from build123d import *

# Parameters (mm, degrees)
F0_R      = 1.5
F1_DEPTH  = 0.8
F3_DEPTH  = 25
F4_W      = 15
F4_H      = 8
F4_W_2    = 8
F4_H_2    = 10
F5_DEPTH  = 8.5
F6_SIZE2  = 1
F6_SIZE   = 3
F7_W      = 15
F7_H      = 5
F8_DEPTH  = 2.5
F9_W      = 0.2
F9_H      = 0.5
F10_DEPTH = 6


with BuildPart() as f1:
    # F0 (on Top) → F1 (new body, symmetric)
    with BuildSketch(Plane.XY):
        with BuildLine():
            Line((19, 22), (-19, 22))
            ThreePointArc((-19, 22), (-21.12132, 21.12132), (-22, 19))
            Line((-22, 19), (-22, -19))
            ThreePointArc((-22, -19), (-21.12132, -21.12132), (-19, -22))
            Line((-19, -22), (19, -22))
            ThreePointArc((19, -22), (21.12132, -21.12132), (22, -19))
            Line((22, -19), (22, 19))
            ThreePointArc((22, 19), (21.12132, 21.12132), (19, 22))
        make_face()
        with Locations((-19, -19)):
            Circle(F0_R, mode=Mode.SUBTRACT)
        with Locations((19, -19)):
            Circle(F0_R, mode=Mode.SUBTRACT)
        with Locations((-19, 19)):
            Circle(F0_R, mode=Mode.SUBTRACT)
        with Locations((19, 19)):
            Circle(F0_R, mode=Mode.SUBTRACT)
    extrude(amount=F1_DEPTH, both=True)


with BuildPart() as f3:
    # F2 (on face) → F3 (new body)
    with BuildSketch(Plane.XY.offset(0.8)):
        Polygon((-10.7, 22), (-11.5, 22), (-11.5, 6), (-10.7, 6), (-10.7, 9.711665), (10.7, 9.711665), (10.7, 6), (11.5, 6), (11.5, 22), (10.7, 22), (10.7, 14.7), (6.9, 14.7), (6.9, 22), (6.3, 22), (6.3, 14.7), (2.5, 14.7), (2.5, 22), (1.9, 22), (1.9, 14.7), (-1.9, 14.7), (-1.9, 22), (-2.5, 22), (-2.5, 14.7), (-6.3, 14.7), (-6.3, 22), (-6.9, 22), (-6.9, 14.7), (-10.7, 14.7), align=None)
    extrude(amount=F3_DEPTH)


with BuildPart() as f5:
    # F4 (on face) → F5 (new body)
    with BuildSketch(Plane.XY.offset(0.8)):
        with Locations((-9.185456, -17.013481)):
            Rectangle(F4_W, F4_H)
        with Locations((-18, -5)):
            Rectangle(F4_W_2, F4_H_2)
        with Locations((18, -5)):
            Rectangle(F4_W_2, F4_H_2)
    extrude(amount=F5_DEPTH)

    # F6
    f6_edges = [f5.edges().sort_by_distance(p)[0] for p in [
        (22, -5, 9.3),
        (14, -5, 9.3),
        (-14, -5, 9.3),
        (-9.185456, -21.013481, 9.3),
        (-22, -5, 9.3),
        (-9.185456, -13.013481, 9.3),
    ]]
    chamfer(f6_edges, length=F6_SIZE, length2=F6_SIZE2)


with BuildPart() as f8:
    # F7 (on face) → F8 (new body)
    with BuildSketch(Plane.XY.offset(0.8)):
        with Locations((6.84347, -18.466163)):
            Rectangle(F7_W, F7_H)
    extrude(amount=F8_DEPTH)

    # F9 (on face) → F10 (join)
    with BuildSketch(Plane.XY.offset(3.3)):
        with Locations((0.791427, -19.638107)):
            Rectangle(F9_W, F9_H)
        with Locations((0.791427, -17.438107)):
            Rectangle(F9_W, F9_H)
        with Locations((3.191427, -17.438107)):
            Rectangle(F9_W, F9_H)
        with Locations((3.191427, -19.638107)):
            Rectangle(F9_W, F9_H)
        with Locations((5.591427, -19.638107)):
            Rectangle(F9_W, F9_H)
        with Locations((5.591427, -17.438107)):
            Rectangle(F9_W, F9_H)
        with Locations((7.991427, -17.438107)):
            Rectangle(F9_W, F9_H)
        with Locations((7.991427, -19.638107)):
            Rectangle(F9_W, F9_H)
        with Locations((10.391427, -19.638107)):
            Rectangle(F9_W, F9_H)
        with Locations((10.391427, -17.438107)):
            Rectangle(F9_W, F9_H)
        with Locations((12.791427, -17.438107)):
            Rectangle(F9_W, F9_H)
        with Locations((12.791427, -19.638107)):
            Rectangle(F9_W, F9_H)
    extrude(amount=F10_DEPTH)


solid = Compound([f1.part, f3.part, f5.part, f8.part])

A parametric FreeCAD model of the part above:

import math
import FreeCAD as App
import Part
import Sketcher
Q = App.Units.Quantity


def edges_at(feature, points):
    """Names of the edges that pass closest to the given points."""
    edges = feature.Shape.Edges
    near = lambda p: min(range(len(edges)), key=lambda i: edges[i].distToShape(Part.Vertex(*p))[0])
    return sorted({f"Edge{near(p) + 1}" for p in points})


def add_polygon(sketch, points):
    """Adds a closed chain of lines whose ends are joined by coincident constraints."""
    first, n = sketch.GeometryCount, len(points)
    for a, b in zip(points, points[1:] + points[:1]):
        sketch.addGeometry(Part.LineSegment(App.Vector(*a, 0), App.Vector(*b, 0)), False)
    for i in range(n):
        sketch.addConstraint(Sketcher.Constraint("Coincident", first + i, 2, first + (i + 1) % n, 1))

doc = App.newDocument("Part")
body = doc.addObject("PartDesign::Body", "Body")

# Sketch on XY plane
sketch1 = doc.addObject("Sketcher::SketchObject", "Sketch")
body.addObject(sketch1)
sketch1.AttachmentSupport = (doc.XY_Plane, [""])
sketch1.MapMode = "FlatFace"
sketch1.addGeometry([
    Part.LineSegment(App.Vector(19, 22, 0), App.Vector(-19, 22, 0)),  # 0
    Part.ArcOfCircle(Part.Circle(App.Vector(-19, 19, 0), App.Vector(0, 0, 1), 3), math.radians(90), math.radians(180)),  # 1
    Part.LineSegment(App.Vector(-22, 19, 0), App.Vector(-22, -19, 0)),  # 2
    Part.ArcOfCircle(Part.Circle(App.Vector(-19, -19, 0), App.Vector(0, 0, 1), 3), math.radians(-180), math.radians(-90)),  # 3
    Part.LineSegment(App.Vector(-19, -22, 0), App.Vector(19, -22, 0)),  # 4
    Part.ArcOfCircle(Part.Circle(App.Vector(19, -19, 0), App.Vector(0, 0, 1), 3), math.radians(-90), math.radians(0)),  # 5
    Part.LineSegment(App.Vector(22, -19, 0), App.Vector(22, 19, 0)),  # 6
    Part.ArcOfCircle(Part.Circle(App.Vector(19, 19, 0), App.Vector(0, 0, 1), 3), math.radians(0), math.radians(90)),  # 7
    Part.Circle(App.Vector(-19, -19, 0), App.Vector(0, 0, 1), 1.5),  # 8
    Part.Circle(App.Vector(19, -19, 0), App.Vector(0, 0, 1), 1.5),  # 9
    Part.Circle(App.Vector(-19, 19, 0), App.Vector(0, 0, 1), 1.5),  # 10
    Part.Circle(App.Vector(19, 19, 0), App.Vector(0, 0, 1), 1.5),  # 11
], False)
sketch1.addConstraint([
    Sketcher.Constraint("Tangent", 0, 2, 1, 1),
    Sketcher.Constraint("Tangent", 1, 2, 2, 1),
    Sketcher.Constraint("Tangent", 2, 2, 3, 1),
    Sketcher.Constraint("Tangent", 3, 2, 4, 1),
    Sketcher.Constraint("Tangent", 4, 2, 5, 1),
    Sketcher.Constraint("Tangent", 5, 2, 6, 1),
    Sketcher.Constraint("Tangent", 6, 2, 7, 1),
    Sketcher.Constraint("Tangent", 7, 2, 0, 1),
    Sketcher.Constraint("Horizontal", 0),
    Sketcher.Constraint("Vertical", 2),
    Sketcher.Constraint("Horizontal", 4),
    Sketcher.Constraint("Vertical", 6),
    Sketcher.Constraint("Coincident", 8, 3, 3, 3),
    Sketcher.Constraint("Coincident", 9, 3, 5, 3),
    Sketcher.Constraint("Coincident", 10, 3, 1, 3),
    Sketcher.Constraint("Coincident", 11, 3, 7, 3),
    Sketcher.Constraint("Equal", 1, 3),
    Sketcher.Constraint("Equal", 3, 5),
    Sketcher.Constraint("Equal", 5, 7),
    Sketcher.Constraint("Equal", 8, 9),
    Sketcher.Constraint("Equal", 9, 10),
    Sketcher.Constraint("Equal", 10, 11),
    Sketcher.Constraint("Symmetric", 1, 3, 5, 3, -1, 1),
    Sketcher.Constraint("Equal", 4, 2),
    Sketcher.Constraint("Diameter", 8, Q("3 mm")),
    Sketcher.Constraint("Radius", 1, Q("3.000001 mm")),
    Sketcher.Constraint("DistanceX", 0, 2, 0, 1, Q("38 mm")),
])
pad1 = doc.addObject("PartDesign::Pad", "Pad")
body.addObject(pad1)
pad1.Profile = sketch1
pad1.Length = 1.6
pad1.Midplane = True
body2 = doc.addObject("PartDesign::Body", "Body001")

# Sketch on XY plane
sketch2 = doc.addObject("Sketcher::SketchObject", "Sketch001")
body2.addObject(sketch2)
sketch2.AttachmentSupport = (doc.getObject("XY_Plane001"), [""])
sketch2.MapMode = "FlatFace"
sketch2.AttachmentOffset = App.Placement(App.Vector(0, 0, 0.8), App.Rotation())
add_polygon(sketch2, [(-10.7, 22), (-11.5, 22), (-11.5, 6), (-10.7, 6), (-10.7, 9.7), (10.7, 9.7), (10.7, 6), (11.5, 6), (11.5, 22), (10.7, 22), (10.7, 14.7), (6.9, 14.7), (6.9, 22), (6.3, 22), (6.3, 14.7), (2.5, 14.7), (2.5, 22), (1.9, 22), (1.9, 14.7), (-1.9, 14.7), (-1.9, 22), (-2.5, 22), (-2.5, 14.7), (-6.3, 14.7), (-6.3, 22), (-6.9, 22), (-6.9, 14.7), (-10.7, 14.7)])  # lines 0-27
sketch2.addConstraint([
    Sketcher.Constraint("Horizontal", 0),
    Sketcher.Constraint("Vertical", 1),
    Sketcher.Constraint("Horizontal", 2),
    Sketcher.Constraint("Vertical", 3),
    Sketcher.Constraint("Horizontal", 4),
    Sketcher.Constraint("Vertical", 5),
    Sketcher.Constraint("Horizontal", 6),
    Sketcher.Constraint("Vertical", 7),
    Sketcher.Constraint("Horizontal", 8),
    Sketcher.Constraint("Vertical", 9),
    Sketcher.Constraint("Horizontal", 10),
    Sketcher.Constraint("Vertical", 11),
    Sketcher.Constraint("Horizontal", 12),
    Sketcher.Constraint("Vertical", 13),
    Sketcher.Constraint("Horizontal", 14),
    Sketcher.Constraint("Vertical", 15),
    Sketcher.Constraint("Horizontal", 16),
    Sketcher.Constraint("Vertical", 17),
    Sketcher.Constraint("Horizontal", 18),
    Sketcher.Constraint("Vertical", 19),
    Sketcher.Constraint("Horizontal", 20),
    Sketcher.Constraint("Vertical", 21),
    Sketcher.Constraint("Horizontal", 22),
    Sketcher.Constraint("Vertical", 23),
    Sketcher.Constraint("Horizontal", 24),
    Sketcher.Constraint("Vertical", 25),
    Sketcher.Constraint("Horizontal", 26),
    Sketcher.Constraint("Vertical", 27),
    Sketcher.Constraint("Symmetric", 2, 2, 5, 2, -2),
    Sketcher.Constraint("Symmetric", 0, 2, 7, 2, -2),
    Sketcher.Constraint("Symmetric", 16, 2, 19, 2, -2),
    Sketcher.Constraint("Symmetric", 14, 2, 21, 2, -2),
    Sketcher.Constraint("Symmetric", 12, 2, 23, 2, -2),
    Sketcher.Constraint("Symmetric", 10, 2, 25, 2, -2),
    Sketcher.Constraint("Horizontal", 8, 2, 11, 2),
    Sketcher.Constraint("Horizontal", 10, 2, 13, 2),
    Sketcher.Constraint("Horizontal", 12, 2, 15, 2),
    Sketcher.Constraint("Horizontal", 14, 2, 17, 2),
    Sketcher.Constraint("Vertical", 5, 2, 8, 2),
    Sketcher.Constraint("Vertical", 3, 2, 26, 2),
    Sketcher.Constraint("Equal", 10, 14),
    Sketcher.Constraint("Equal", 12, 16),
    Sketcher.Constraint("Equal", 14, 18),
    Sketcher.Constraint("DistanceY", 1, 2, 1, 1, Q("16 mm")),
    Sketcher.Constraint("DistanceX", 0, 2, 0, 1, Q("0.8 mm")),
    Sketcher.Constraint("DistanceX", 4, 1, 4, 2, Q("21.4 mm")),
    Sketcher.Constraint("DistanceX", 10, 2, 10, 1, Q("3.8 mm")),
    Sketcher.Constraint("DistanceY", 9, 2, 9, 1, Q("7.3 mm")),
    Sketcher.Constraint("DistanceY", -1, 1, 0, 2, Q("22 mm")),
    Sketcher.Constraint("DistanceY", 3, 1, 3, 2, Q("3.711665 mm")),
])
pad2 = doc.addObject("PartDesign::Pad", "Pad001")
body2.addObject(pad2)
pad2.Profile = sketch2
pad2.Length = 25
body3 = doc.addObject("PartDesign::Body", "Body002")
body3.AllowCompound = True

# Sketch on XY plane
sketch3 = doc.addObject("Sketcher::SketchObject", "Sketch002")
body3.addObject(sketch3)
sketch3.AttachmentSupport = (doc.getObject("XY_Plane002"), [""])
sketch3.MapMode = "FlatFace"
sketch3.AttachmentOffset = App.Placement(App.Vector(0, 0, 0.8), App.Rotation())
add_polygon(sketch3, [(-17, -13), (-17, -21), (-2, -21), (-2, -13)])  # lines 0-3
add_polygon(sketch3, [(-22, 0), (-22, -10), (-14, -10), (-14, 0)])  # lines 4-7
add_polygon(sketch3, [(14, 0), (14, -10), (22, -10), (22, 0)])  # lines 8-11
sketch3.addConstraint([
    Sketcher.Constraint("Vertical", 0),
    Sketcher.Constraint("Horizontal", 1),
    Sketcher.Constraint("Vertical", 2),
    Sketcher.Constraint("Horizontal", 3),
    Sketcher.Constraint("Vertical", 4),
    Sketcher.Constraint("Horizontal", 5),
    Sketcher.Constraint("Vertical", 6),
    Sketcher.Constraint("Horizontal", 7),
    Sketcher.Constraint("Vertical", 8),
    Sketcher.Constraint("Horizontal", 9),
    Sketcher.Constraint("Vertical", 10),
    Sketcher.Constraint("Horizontal", 11),
    Sketcher.Constraint("Symmetric", 7, 2, 10, 2, -1, 1),
    Sketcher.Constraint("Symmetric", 5, 2, 8, 2, -2),
    Sketcher.Constraint("PointOnObject", 6, 2, -1),
    Sketcher.Constraint("Equal", 11, 0),
    Sketcher.Constraint("DistanceX", 1, 1, 1, 2, Q("15 mm")),
    Sketcher.Constraint("DistanceX", 5, 1, 5, 2, Q("8 mm")),
    Sketcher.Constraint("DistanceY", 4, 2, 4, 1, Q("10 mm")),
    Sketcher.Constraint("DistanceX", 4, 2, -1, 1, Q("22 mm")),
    Sketcher.Constraint("DistanceY", 0, 2, -1, 1, Q("21.013481 mm")),
    Sketcher.Constraint("DistanceX", 0, 2, -1, 1, Q("16.685456 mm")),
])
pad3 = doc.addObject("PartDesign::Pad", "Pad002")
body3.addObject(pad3)
pad3.Profile = sketch3
pad3.Length = 8.5
doc.recompute()

chamfer = doc.addObject("PartDesign::Chamfer", "Chamfer")
body3.addObject(chamfer)
chamfer.Base = (pad3, edges_at(pad3, [
    (22, -5, 9.3),
    (14, -5, 9.3),
    (-14, -5, 9.3),
    (-9.185, -21.013, 9.3),
    (-22, -5, 9.3),
    (-9.185, -13.013, 9.3),
]))
chamfer.ChamferType = "Two distances"
chamfer.Size = 3
chamfer.Size2 = 1
body4 = doc.addObject("PartDesign::Body", "Body003")

# Sketch on XY plane
sketch4 = doc.addObject("Sketcher::SketchObject", "Sketch003")
body4.addObject(sketch4)
sketch4.AttachmentSupport = (doc.getObject("XY_Plane003"), [""])
sketch4.MapMode = "FlatFace"
sketch4.AttachmentOffset = App.Placement(App.Vector(0, 0, 0.8), App.Rotation())
add_polygon(sketch4, [(-1, -16), (-1, -21), (14, -21), (14, -16)])  # lines 0-3
sketch4.addConstraint([
    Sketcher.Constraint("Vertical", 0),
    Sketcher.Constraint("Horizontal", 1),
    Sketcher.Constraint("Vertical", 2),
    Sketcher.Constraint("Horizontal", 3),
    Sketcher.Constraint("DistanceX", 1, 1, 1, 2, Q("15 mm")),
    Sketcher.Constraint("DistanceY", 0, 2, 0, 1, Q("5 mm")),
    Sketcher.Constraint("DistanceX", 0, 2, -1, 1, Q("0.65653 mm")),
    Sketcher.Constraint("DistanceY", 0, 2, -1, 1, Q("20.966163 mm")),
])
pad4 = doc.addObject("PartDesign::Pad", "Pad003")
body4.addObject(pad4)
pad4.Profile = sketch4
pad4.Length = 2.5

# Sketch on XY plane
sketch5 = doc.addObject("Sketcher::SketchObject", "Sketch004")
body4.addObject(sketch5)
sketch5.AttachmentSupport = (doc.getObject("XY_Plane003"), [""])
sketch5.MapMode = "FlatFace"
sketch5.AttachmentOffset = App.Placement(App.Vector(0, 0, 3.3), App.Rotation())
add_polygon(sketch5, [(0.69, -19.39), (0.69, -19.89), (0.89, -19.89), (0.89, -19.39)])  # lines 0-3
add_polygon(sketch5, [(0.69, -17.19), (0.69, -17.69), (0.89, -17.69), (0.89, -17.19)])  # lines 4-7
add_polygon(sketch5, [(3.09, -17.19), (3.09, -17.69), (3.29, -17.69), (3.29, -17.19)])  # lines 8-11
add_polygon(sketch5, [(3.09, -19.39), (3.09, -19.89), (3.29, -19.89), (3.29, -19.39)])  # lines 12-15
add_polygon(sketch5, [(5.49, -19.39), (5.49, -19.89), (5.69, -19.89), (5.69, -19.39)])  # lines 16-19
add_polygon(sketch5, [(5.49, -17.19), (5.49, -17.69), (5.69, -17.69), (5.69, -17.19)])  # lines 20-23
add_polygon(sketch5, [(7.89, -17.19), (7.89, -17.69), (8.09, -17.69), (8.09, -17.19)])  # lines 24-27
add_polygon(sketch5, [(7.89, -19.39), (7.89, -19.89), (8.09, -19.89), (8.09, -19.39)])  # lines 28-31
add_polygon(sketch5, [(10.29, -19.39), (10.29, -19.89), (10.49, -19.89), (10.49, -19.39)])  # lines 32-35
add_polygon(sketch5, [(10.29, -17.19), (10.29, -17.69), (10.49, -17.69), (10.49, -17.19)])  # lines 36-39
add_polygon(sketch5, [(12.69, -17.19), (12.69, -17.69), (12.89, -17.69), (12.89, -17.19)])  # lines 40-43
add_polygon(sketch5, [(12.69, -19.39), (12.69, -19.89), (12.89, -19.89), (12.89, -19.39)])  # lines 44-47
sketch5.addConstraint([
    Sketcher.Constraint("Vertical", 0),
    Sketcher.Constraint("Horizontal", 1),
    Sketcher.Constraint("Vertical", 2),
    Sketcher.Constraint("Horizontal", 3),
    Sketcher.Constraint("Vertical", 4),
    Sketcher.Constraint("Horizontal", 5),
    Sketcher.Constraint("Vertical", 6),
    Sketcher.Constraint("Horizontal", 7),
    Sketcher.Constraint("Vertical", 8),
    Sketcher.Constraint("Horizontal", 9),
    Sketcher.Constraint("Vertical", 10),
    Sketcher.Constraint("Horizontal", 11),
    Sketcher.Constraint("Vertical", 12),
    Sketcher.Constraint("Horizontal", 13),
    Sketcher.Constraint("Vertical", 14),
    Sketcher.Constraint("Horizontal", 15),
    Sketcher.Constraint("Vertical", 16),
    Sketcher.Constraint("Horizontal", 17),
    Sketcher.Constraint("Vertical", 18),
    Sketcher.Constraint("Horizontal", 19),
    Sketcher.Constraint("Vertical", 20),
    Sketcher.Constraint("Horizontal", 21),
    Sketcher.Constraint("Vertical", 22),
    Sketcher.Constraint("Horizontal", 23),
    Sketcher.Constraint("Vertical", 24),
    Sketcher.Constraint("Horizontal", 25),
    Sketcher.Constraint("Vertical", 26),
    Sketcher.Constraint("Horizontal", 27),
    Sketcher.Constraint("Vertical", 28),
    Sketcher.Constraint("Horizontal", 29),
    Sketcher.Constraint("Vertical", 30),
    Sketcher.Constraint("Horizontal", 31),
    Sketcher.Constraint("Vertical", 32),
    Sketcher.Constraint("Horizontal", 33),
    Sketcher.Constraint("Vertical", 34),
    Sketcher.Constraint("Horizontal", 35),
    Sketcher.Constraint("Vertical", 36),
    Sketcher.Constraint("Horizontal", 37),
    Sketcher.Constraint("Vertical", 38),
    Sketcher.Constraint("Horizontal", 39),
    Sketcher.Constraint("Vertical", 40),
    Sketcher.Constraint("Horizontal", 41),
    Sketcher.Constraint("Vertical", 42),
    Sketcher.Constraint("Horizontal", 43),
    Sketcher.Constraint("Vertical", 44),
    Sketcher.Constraint("Horizontal", 45),
    Sketcher.Constraint("Vertical", 46),
    Sketcher.Constraint("Horizontal", 47),
    Sketcher.Constraint("Horizontal", 5, 2, 8, 2),
    Sketcher.Constraint("Horizontal", 7, 2, 10, 2),
    Sketcher.Constraint("Horizontal", 1, 2, 12, 2),
    Sketcher.Constraint("Horizontal", 3, 2, 14, 2),
    Sketcher.Constraint("Horizontal", 13, 2, 16, 2),
    Sketcher.Constraint("Horizontal", 15, 2, 18, 2),
    Sketcher.Constraint("Horizontal", 9, 2, 20, 2),
    Sketcher.Constraint("Horizontal", 11, 2, 22, 2),
    Sketcher.Constraint("Horizontal", 21, 2, 24, 2),
    Sketcher.Constraint("Horizontal", 23, 2, 26, 2),
    Sketcher.Constraint("Horizontal", 17, 2, 28, 2),
    Sketcher.Constraint("Horizontal", 19, 2, 30, 2),
    Sketcher.Constraint("Horizontal", 29, 2, 32, 2),
    Sketcher.Constraint("Horizontal", 31, 2, 34, 2),
    Sketcher.Constraint("Horizontal", 25, 2, 36, 2),
    Sketcher.Constraint("Horizontal", 27, 2, 38, 2),
    Sketcher.Constraint("Horizontal", 37, 2, 40, 2),
    Sketcher.Constraint("Horizontal", 39, 2, 42, 2),
    Sketcher.Constraint("Horizontal", 33, 2, 44, 2),
    Sketcher.Constraint("Horizontal", 35, 2, 46, 2),
    Sketcher.Constraint("Vertical", 3, 2, 4, 2),
    Sketcher.Constraint("Vertical", 2, 2, 5, 2),
    Sketcher.Constraint("Vertical", 11, 2, 12, 2),
    Sketcher.Constraint("Vertical", 10, 2, 13, 2),
    Sketcher.Constraint("Vertical", 19, 2, 20, 2),
    Sketcher.Constraint("Vertical", 18, 2, 21, 2),
    Sketcher.Constraint("Vertical", 27, 2, 28, 2),
    Sketcher.Constraint("Vertical", 26, 2, 29, 2),
    Sketcher.Constraint("Vertical", 35, 2, 36, 2),
    Sketcher.Constraint("Vertical", 34, 2, 37, 2),
    Sketcher.Constraint("Vertical", 43, 2, 44, 2),
    Sketcher.Constraint("Vertical", 42, 2, 45, 2),
    Sketcher.Constraint("Equal", 7, 9),
    Sketcher.Constraint("Equal", 15, 17),
    Sketcher.Constraint("Equal", 23, 25),
    Sketcher.Constraint("Equal", 31, 33),
    Sketcher.Constraint("Equal", 39, 41),
    Sketcher.Constraint("Equal", 2, 4),
    Sketcher.Constraint("DistanceX", 1, 1, 1, 2, Q("0.2 mm")),
    Sketcher.Constraint("DistanceY", 0, 2, 0, 1, Q("0.5 mm")),
    Sketcher.Constraint("DistanceY", 3, 2, 4, 2, Q("1.7 mm")),
    Sketcher.Constraint("DistanceX", 5, 2, 8, 2, Q("2.2 mm")),
    Sketcher.Constraint("DistanceX", 13, 2, 16, 2, Q("2.2 mm")),
    Sketcher.Constraint("DistanceX", 21, 2, 24, 2, Q("2.2 mm")),
    Sketcher.Constraint("DistanceX", 29, 2, 32, 2, Q("2.2 mm")),
    Sketcher.Constraint("DistanceX", 37, 2, 40, 2, Q("2.2 mm")),
    Sketcher.Constraint("DistanceX", -1, 1, 0, 2, Q("0.691427 mm")),
    Sketcher.Constraint("DistanceY", 0, 2, -1, 1, Q("19.888107 mm")),
])
pad5 = doc.addObject("PartDesign::Pad", "Pad004")
body4.addObject(pad5)
pad5.Profile = sketch5
pad5.Length = 6

doc.recompute()
